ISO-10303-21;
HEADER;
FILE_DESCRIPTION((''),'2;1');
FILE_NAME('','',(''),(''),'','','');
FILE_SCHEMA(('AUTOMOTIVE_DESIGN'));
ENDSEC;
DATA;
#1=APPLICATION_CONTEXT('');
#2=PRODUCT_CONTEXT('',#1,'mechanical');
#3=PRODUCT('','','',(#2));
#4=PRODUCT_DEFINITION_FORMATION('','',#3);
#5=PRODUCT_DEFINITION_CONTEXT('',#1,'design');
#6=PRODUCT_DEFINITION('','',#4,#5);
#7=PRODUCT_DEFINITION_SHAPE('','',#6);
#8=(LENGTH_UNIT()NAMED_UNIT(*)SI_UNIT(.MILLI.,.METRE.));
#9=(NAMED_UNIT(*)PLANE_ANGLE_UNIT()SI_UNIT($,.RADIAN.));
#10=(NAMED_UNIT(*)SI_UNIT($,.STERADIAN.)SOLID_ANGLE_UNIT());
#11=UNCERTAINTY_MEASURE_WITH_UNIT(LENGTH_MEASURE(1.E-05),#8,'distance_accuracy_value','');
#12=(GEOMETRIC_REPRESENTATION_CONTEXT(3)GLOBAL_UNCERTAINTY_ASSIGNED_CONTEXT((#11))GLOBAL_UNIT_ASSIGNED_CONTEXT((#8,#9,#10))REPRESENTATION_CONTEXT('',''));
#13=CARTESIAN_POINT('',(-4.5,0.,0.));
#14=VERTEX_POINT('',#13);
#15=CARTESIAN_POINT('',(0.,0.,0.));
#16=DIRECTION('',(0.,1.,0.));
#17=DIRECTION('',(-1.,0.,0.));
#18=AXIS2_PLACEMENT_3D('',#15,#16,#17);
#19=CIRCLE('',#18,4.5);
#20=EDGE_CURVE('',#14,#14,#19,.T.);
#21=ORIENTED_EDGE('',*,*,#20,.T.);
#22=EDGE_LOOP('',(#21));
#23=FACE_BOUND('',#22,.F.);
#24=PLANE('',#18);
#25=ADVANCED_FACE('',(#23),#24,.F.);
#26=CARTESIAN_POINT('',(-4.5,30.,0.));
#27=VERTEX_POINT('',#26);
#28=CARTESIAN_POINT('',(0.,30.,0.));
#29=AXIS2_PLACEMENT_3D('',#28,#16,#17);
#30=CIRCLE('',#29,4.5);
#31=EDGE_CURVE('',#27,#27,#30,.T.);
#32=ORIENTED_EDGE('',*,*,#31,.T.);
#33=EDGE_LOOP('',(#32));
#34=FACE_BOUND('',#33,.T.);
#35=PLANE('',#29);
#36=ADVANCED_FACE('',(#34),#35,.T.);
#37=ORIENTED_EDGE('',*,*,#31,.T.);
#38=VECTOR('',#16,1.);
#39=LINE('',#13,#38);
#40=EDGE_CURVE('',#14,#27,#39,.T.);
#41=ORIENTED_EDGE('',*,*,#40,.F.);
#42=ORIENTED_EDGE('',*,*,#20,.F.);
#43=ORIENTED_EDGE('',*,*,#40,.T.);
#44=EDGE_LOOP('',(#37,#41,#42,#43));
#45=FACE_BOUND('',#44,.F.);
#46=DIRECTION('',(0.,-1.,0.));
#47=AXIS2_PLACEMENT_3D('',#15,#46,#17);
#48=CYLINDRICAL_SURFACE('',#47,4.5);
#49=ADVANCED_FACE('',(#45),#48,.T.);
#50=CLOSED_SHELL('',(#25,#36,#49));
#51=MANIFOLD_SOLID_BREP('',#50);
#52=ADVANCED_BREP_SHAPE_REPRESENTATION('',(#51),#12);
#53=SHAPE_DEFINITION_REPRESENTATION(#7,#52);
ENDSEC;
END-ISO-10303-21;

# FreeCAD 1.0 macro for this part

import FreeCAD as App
import Part
import Sketcher
from FreeCAD import Vector
Q = App.Units.Quantity

doc = App.newDocument("Part")
body = doc.addObject("PartDesign::Body", "Body")

# Sketch on XZ plane
sketch1 = body.newObject("Sketcher::SketchObject", "Sketch")
sketch1.AttachmentSupport = (doc.getObject("XZ_Plane"), [""])
sketch1.MapMode = "FlatFace"
sketch1.addGeometry(Part.Circle(Vector(0, 0, 0), Vector(0, 0, 1), 4.5), False)
sketch1.addConstraint([
    Sketcher.Constraint("Coincident", 0, 3, -1, 1),
    Sketcher.Constraint("Diameter", 0, Q("9 mm")),
])
pad1 = body.newObject("PartDesign::Pad", "Pad")
pad1.Profile = sketch1
pad1.Length = 30
pad1.Reversed = True

doc.recompute()
